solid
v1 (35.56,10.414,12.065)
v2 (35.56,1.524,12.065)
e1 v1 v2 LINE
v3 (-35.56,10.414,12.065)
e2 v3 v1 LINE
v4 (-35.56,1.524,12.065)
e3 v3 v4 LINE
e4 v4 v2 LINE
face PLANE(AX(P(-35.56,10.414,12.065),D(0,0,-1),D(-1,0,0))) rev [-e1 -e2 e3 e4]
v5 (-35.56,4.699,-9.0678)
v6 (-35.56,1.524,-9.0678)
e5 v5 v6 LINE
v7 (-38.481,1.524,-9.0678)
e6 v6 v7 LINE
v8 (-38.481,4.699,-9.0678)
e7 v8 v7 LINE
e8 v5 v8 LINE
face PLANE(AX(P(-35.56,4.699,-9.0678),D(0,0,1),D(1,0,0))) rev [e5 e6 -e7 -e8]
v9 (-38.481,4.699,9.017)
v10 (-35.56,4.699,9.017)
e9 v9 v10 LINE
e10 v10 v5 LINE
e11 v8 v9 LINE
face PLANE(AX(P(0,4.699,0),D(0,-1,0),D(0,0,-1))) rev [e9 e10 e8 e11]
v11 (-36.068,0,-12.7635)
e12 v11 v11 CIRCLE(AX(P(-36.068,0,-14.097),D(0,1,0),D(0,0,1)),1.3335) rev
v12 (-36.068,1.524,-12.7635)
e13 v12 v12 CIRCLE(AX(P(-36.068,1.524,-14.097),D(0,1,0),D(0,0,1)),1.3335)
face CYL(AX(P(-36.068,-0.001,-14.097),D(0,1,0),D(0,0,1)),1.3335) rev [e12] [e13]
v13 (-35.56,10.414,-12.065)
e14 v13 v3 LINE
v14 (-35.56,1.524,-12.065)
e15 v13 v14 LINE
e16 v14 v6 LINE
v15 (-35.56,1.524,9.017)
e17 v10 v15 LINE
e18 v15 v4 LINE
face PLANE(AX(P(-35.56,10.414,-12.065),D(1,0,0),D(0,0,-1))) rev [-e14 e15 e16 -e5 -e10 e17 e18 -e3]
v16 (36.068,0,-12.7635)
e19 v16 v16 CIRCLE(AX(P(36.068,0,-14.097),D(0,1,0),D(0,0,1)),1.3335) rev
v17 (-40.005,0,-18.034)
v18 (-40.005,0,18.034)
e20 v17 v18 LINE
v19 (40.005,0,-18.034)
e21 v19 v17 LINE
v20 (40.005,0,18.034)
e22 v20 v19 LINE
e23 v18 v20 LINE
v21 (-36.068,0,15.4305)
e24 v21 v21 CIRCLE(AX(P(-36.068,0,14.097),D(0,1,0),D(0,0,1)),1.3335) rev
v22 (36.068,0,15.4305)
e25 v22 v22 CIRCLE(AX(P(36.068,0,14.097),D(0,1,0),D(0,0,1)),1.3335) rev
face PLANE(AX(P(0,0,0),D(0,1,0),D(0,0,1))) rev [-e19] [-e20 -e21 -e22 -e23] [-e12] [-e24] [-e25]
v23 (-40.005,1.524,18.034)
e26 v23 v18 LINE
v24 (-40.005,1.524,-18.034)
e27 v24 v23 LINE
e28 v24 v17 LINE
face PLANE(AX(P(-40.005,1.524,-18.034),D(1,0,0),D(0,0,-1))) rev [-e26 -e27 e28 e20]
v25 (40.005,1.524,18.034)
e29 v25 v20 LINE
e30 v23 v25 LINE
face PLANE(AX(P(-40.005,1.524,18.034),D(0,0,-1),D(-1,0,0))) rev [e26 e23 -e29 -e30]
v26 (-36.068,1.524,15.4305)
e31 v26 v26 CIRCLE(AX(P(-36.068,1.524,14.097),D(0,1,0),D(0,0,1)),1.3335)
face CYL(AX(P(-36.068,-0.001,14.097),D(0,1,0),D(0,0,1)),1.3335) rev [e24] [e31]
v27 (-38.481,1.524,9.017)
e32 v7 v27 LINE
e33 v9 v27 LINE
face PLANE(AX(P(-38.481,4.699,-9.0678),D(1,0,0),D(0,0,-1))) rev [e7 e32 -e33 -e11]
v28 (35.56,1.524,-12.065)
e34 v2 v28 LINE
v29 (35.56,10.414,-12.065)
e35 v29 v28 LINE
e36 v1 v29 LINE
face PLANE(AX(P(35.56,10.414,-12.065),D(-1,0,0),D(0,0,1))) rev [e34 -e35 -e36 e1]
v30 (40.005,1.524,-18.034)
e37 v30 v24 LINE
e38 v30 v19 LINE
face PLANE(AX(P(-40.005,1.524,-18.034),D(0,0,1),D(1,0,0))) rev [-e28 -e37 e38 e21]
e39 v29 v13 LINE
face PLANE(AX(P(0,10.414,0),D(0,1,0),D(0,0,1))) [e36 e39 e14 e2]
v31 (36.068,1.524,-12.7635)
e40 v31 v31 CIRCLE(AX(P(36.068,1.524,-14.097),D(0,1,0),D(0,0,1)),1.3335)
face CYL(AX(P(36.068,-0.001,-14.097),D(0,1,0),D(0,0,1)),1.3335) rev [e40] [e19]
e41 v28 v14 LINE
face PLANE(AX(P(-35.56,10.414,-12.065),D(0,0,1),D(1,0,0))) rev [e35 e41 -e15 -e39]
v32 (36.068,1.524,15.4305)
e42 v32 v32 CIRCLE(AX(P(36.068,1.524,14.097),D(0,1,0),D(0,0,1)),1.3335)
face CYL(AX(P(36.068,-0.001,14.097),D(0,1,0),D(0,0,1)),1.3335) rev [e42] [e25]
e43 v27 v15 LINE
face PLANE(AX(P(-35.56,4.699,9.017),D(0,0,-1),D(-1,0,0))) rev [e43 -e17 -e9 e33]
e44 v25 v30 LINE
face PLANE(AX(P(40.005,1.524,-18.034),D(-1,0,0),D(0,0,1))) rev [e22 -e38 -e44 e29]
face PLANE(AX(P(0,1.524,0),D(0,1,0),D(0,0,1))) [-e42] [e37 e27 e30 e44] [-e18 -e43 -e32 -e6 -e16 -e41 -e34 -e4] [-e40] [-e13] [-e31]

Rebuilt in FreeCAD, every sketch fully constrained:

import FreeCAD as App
import Part
import Sketcher

V = App.Vector
Q = App.Units.Quantity


def add_polygon(sketch, points):
    """Adds a closed chain of lines whose ends are joined by coincident constraints."""
    first, n = sketch.GeometryCount, len(points)
    for a, b in zip(points, points[1:] + points[:1]):
        sketch.addGeometry(Part.LineSegment(App.Vector(*a, 0), App.Vector(*b, 0)), False)
    for i in range(n):
        sketch.addConstraint(Sketcher.Constraint("Coincident", first + i, 2, first + (i + 1) % n, 1))

doc = App.newDocument("Part")
body = doc.addObject("PartDesign::Body", "Body")

sketch1 = body.newObject("Sketcher::SketchObject", "Sketch")
sketch1.AttachmentSupport = (doc.getObject("XZ_Plane"), [""])
sketch1.MapMode = "FlatFace"
add_polygon(sketch1, [(-40, -18), (-40, 18), (40, 18), (40, -18)])
sketch1.addConstraint([
    Sketcher.Constraint("Vertical", 0),
    Sketcher.Constraint("Horizontal", 1),
    Sketcher.Constraint("Vertical", 2),
    Sketcher.Constraint("Horizontal", 3),
    Sketcher.Constraint("Symmetric", 0, 2, 2, 2, -1, 1),
    Sketcher.Constraint("DistanceX", 1, 1, 1, 2, Q("3.15 in")),
    Sketcher.Constraint("DistanceY", 0, 1, 0, 2, Q("1.42 in")),
])
pad1 = body.newObject("PartDesign::Pad", "Pad")
pad1.Profile = sketch1
pad1.Length = Q("0.06 in")
pad1.Reversed = True

sketch2 = body.newObject("Sketcher::SketchObject", "Sketch001")
sketch2.AttachmentSupport = (doc.getObject("XZ_Plane"), [""])
sketch2.MapMode = "FlatFace"
sketch2.AttachmentOffset = App.Placement(V(0, 0, -0.06 * 25.4), App.Rotation())
sketch2.addGeometry(Part.Circle(V(-36.1, -14.1, 0), V(0, 0, 1), 1.3), False)
sketch2.addConstraint([
    Sketcher.Constraint("Diameter", 0, Q("0.105 in")),
    Sketcher.Constraint("DistanceX", 0, 3, -1, 1, Q("1.42 in")),
    Sketcher.Constraint("DistanceY", 0, 3, -1, 1, Q("0.555 in")),
])
pocket1 = body.newObject("PartDesign::Pocket", "Pocket")
pocket1.Profile = sketch2
pocket1.Type = "UpToFirst"
pocket1.Reversed = True

sketch3 = body.newObject("Sketcher::SketchObject", "Sketch002")
sketch3.AttachmentSupport = (doc.getObject("XZ_Plane"), [""])
sketch3.MapMode = "FlatFace"
sketch3.AttachmentOffset = App.Placement(V(0, 0, -0.06 * 25.4), App.Rotation())
sketch3.addGeometry(Part.Circle(V(36.1, -14.1, 0), V(0, 0, 1), 1.3), False)
sketch3.addConstraint([
    Sketcher.Constraint("Diameter", 0, Q("0.105 in")),
    Sketcher.Constraint("DistanceX", -1, 1, 0, 3, Q("1.42 in")),
    Sketcher.Constraint("DistanceY", 0, 3, -1, 1, Q("0.555 in")),
])
pocket2 = body.newObject("PartDesign::Pocket", "Pocket001")
pocket2.Profile = sketch3
pocket2.Type = "UpToFirst"
pocket2.Reversed = True

sketch4 = body.newObject("Sketcher::SketchObject", "Sketch003")
sketch4.AttachmentSupport = (doc.getObject("XZ_Plane"), [""])
sketch4.MapMode = "FlatFace"
sketch4.AttachmentOffset = App.Placement(V(0, 0, -0.06 * 25.4), App.Rotation())
sketch4.addGeometry(Part.Circle(V(36.1, 14.1, 0), V(0, 0, 1), 1.3), False)
sketch4.addConstraint([
    Sketcher.Constraint("Diameter", 0, Q("0.105 in")),
    Sketcher.Constraint("DistanceX", -1, 1, 0, 3, Q("1.42 in")),
    Sketcher.Constraint("DistanceY", -1, 1, 0, 3, Q("0.555 in")),
])
pocket3 = body.newObject("PartDesign::Pocket", "Pocket002")
pocket3.Profile = sketch4
pocket3.Type = "UpToFirst"
pocket3.Reversed = True

sketch5 = body.newObject("Sketcher::SketchObject", "Sketch004")
sketch5.AttachmentSupport = (doc.getObject("XZ_Plane"), [""])
sketch5.MapMode = "FlatFace"
sketch5.AttachmentOffset = App.Placement(V(0, 0, -0.06 * 25.4), App.Rotation())
sketch5.addGeometry(Part.Circle(V(-36.1, 14.1, 0), V(0, 0, 1), 1.3), False)
sketch5.addConstraint([
    Sketcher.Constraint("Diameter", 0, Q("0.105 in")),
    Sketcher.Constraint("DistanceX", 0, 3, -1, 1, Q("1.42 in")),
    Sketcher.Constraint("DistanceY", -1, 1, 0, 3, Q("0.555 in")),
])
pocket4 = body.newObject("PartDesign::Pocket", "Pocket003")
pocket4.Profile = sketch5
pocket4.Type = "UpToFirst"
pocket4.Reversed = True

sketch6 = body.newObject("Sketcher::SketchObject", "Sketch005")
sketch6.AttachmentSupport = (doc.getObject("XZ_Plane"), [""])
sketch6.MapMode = "FlatFace"
sketch6.AttachmentOffset = App.Placement(V(0, 0, -0.06 * 25.4), App.Rotation())
add_polygon(sketch6, [(-36, -12), (-36, 12), (36, 12), (36, -12)])
sketch6.addConstraint([
    Sketcher.Constraint("Vertical", 0),
    Sketcher.Constraint("Horizontal", 1),
    Sketcher.Constraint("Vertical", 2),
    Sketcher.Constraint("Horizontal", 3),
    Sketcher.Constraint("Symmetric", 0, 2, 2, 2, -1, 1),
    Sketcher.Constraint("DistanceX", 1, 1, 1, 2, Q("2.8 in")),
    Sketcher.Constraint("DistanceY", 0, 1, 0, 2, Q("0.95 in")),
])
pad2 = body.newObject("PartDesign::Pad", "Pad001")
pad2.Profile = sketch6
pad2.Length = Q("0.35 in")
pad2.Reversed = True

sketch7 = body.newObject("Sketcher::SketchObject", "Sketch006")
sketch7.AttachmentSupport = (doc.getObject("XZ_Plane"), [""])
sketch7.MapMode = "FlatFace"
sketch7.AttachmentOffset = App.Placement(V(0, 0, -0.06 * 25.4), App.Rotation())
add_polygon(sketch7, [(-38.5, -9.1), (-38.5, 9), (-35.6, 9), (-35.6, -9.1)])
sketch7.addConstraint([
    Sketcher.Constraint("Vertical", 0),
    Sketcher.Constraint("Horizontal", 1),
    Sketcher.Constraint("Vertical", 2),
    Sketcher.Constraint("Horizontal", 3),
    Sketcher.Constraint("DistanceX", 1, 2, -1, 1, Q("1.4 in")),
    Sketcher.Constraint("DistanceX", 1, 1, 1, 2, Q("0.115 in")),
    Sketcher.Constraint("DistanceY", 0, 1, 0, 2, Q("0.712 in")),
    Sketcher.Constraint("DistanceY", -1, 1, 0, 2, Q("0.355 in")),
])
pad3 = body.newObject("PartDesign::Pad", "Pad002")
pad3.Profile = sketch7
pad3.Length = Q("0.125 in")
pad3.Reversed = True

doc.recompute()
